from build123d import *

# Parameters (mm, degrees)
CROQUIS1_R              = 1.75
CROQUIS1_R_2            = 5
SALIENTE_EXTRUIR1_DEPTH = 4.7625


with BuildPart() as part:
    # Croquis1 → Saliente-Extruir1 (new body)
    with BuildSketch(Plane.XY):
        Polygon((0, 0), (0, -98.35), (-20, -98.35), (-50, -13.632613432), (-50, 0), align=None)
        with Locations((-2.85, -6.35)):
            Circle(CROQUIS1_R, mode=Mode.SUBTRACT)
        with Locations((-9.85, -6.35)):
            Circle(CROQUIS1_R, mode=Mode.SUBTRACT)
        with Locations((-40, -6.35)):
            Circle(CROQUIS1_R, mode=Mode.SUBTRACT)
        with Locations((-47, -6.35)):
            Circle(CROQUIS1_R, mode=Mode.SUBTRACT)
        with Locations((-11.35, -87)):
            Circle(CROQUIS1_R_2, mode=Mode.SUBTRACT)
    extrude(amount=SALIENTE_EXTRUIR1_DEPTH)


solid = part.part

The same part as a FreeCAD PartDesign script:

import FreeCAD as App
import Part
import Sketcher
from FreeCAD import Vector
Q = App.Units.Quantity


def add_polygon(sketch, points):
    """Adds a closed chain of lines whose ends are joined by coincident constraints."""
    first, n = sketch.GeometryCount, len(points)
    for a, b in zip(points, points[1:] + points[:1]):
        sketch.addGeometry(Part.LineSegment(App.Vector(*a, 0), App.Vector(*b, 0)), False)
    for i in range(n):
        sketch.addConstraint(Sketcher.Constraint("Coincident", first + i, 2, first + (i + 1) % n, 1))

doc = App.newDocument("Part")
body = doc.addObject("PartDesign::Body", "Body")

sketch1 = body.newObject("Sketcher::SketchObject", "Sketch")
sketch1.AttachmentSupport = (doc.getObject("XY_Plane"), [""])
sketch1.MapMode = "FlatFace"
add_polygon(sketch1, [(0, -98.3), (0, 0), (-50, 0), (-50, -13.6), (-20, -98.3)])
sketch1.addGeometry(Part.Circle(Vector(-11.3, -87, 0), Vector(0, 0, 1), 5), False)
sketch1.addGeometry(Part.Circle(Vector(-2.9, -6.3, 0), Vector(0, 0, 1), 1.8), False)
sketch1.addGeometry(Part.Circle(Vector(-9.8, -6.3, 0), Vector(0, 0, 1), 1.8), False)
sketch1.addGeometry(Part.Circle(Vector(-40, -6.3, 0), Vector(0, 0, 1), 1.8), False)
sketch1.addGeometry(Part.Circle(Vector(-47, -6.3, 0), Vector(0, 0, 1), 1.8), False)
sketch1.addConstraint(Sketcher.Constraint("Vertical", 0))
sketch1.addConstraint(Sketcher.Constraint("Horizontal", 1))
sketch1.addConstraint(Sketcher.Constraint("Vertical", 2))
sketch1.addConstraint(Sketcher.Constraint("Horizontal", 4))
sketch1.addConstraint(Sketcher.Constraint("Coincident", 0, 2, -1, 1))
sketch1.addConstraint(Sketcher.Constraint("Equal", 6, 7))
sketch1.addConstraint(Sketcher.Constraint("Equal", 7, 8))
sketch1.addConstraint(Sketcher.Constraint("Equal", 8, 9))
sketch1.addConstraint(Sketcher.Constraint("Horizontal", 6, 3, 7, 3))
sketch1.addConstraint(Sketcher.Constraint("Horizontal", 7, 3, 8, 3))
sketch1.addConstraint(Sketcher.Constraint("Horizontal", 8, 3, 9, 3))
sketch1.addConstraint(Sketcher.Constraint("Diameter", 5, 10.0))
sketch1.addConstraint(Sketcher.Constraint("Diameter", 6, 3.5))
sketch1.addConstraint(Sketcher.Constraint("DistanceX", 1, 2, 1, 1, 50.0))
sketch1.addConstraint(Sketcher.Constraint("DistanceX", 4, 1, 4, 2, 20.0))
sketch1.addConstraint(Sketcher.Constraint("DistanceY", 5, 3, -1, 1, 87.0))
sketch1.addConstraint(Sketcher.Constraint("DistanceX", 8, 3, -1, 1, 40.0))
sketch1.addConstraint(Sketcher.Constraint("DistanceX", 9, 3, -1, 1, 47.0))
sketch1.addConstraint(Sketcher.Constraint("Angle", 3, Q("-70.5 deg")))
sketch1.addConstraint(Sketcher.Constraint("DistanceX", 7, 3, 6, 3, 7.0))
sketch1.addConstraint(Sketcher.Constraint("DistanceY", 3, 2, 7, 3, 92.0))
sketch1.addConstraint(Sketcher.Constraint("DistanceY", 0, 1, 0, 2, 98.35))
sketch1.addConstraint(Sketcher.Constraint("DistanceX", 5, 3, 6, 3, 8.5))
sketch1.addConstraint(Sketcher.Constraint("DistanceX", 5, 3, -1, 1, 11.35))
pad1 = body.newObject("PartDesign::Pad", "Pad")
pad1.Profile = sketch1
pad1.Length = 4.7625

doc.recompute()
